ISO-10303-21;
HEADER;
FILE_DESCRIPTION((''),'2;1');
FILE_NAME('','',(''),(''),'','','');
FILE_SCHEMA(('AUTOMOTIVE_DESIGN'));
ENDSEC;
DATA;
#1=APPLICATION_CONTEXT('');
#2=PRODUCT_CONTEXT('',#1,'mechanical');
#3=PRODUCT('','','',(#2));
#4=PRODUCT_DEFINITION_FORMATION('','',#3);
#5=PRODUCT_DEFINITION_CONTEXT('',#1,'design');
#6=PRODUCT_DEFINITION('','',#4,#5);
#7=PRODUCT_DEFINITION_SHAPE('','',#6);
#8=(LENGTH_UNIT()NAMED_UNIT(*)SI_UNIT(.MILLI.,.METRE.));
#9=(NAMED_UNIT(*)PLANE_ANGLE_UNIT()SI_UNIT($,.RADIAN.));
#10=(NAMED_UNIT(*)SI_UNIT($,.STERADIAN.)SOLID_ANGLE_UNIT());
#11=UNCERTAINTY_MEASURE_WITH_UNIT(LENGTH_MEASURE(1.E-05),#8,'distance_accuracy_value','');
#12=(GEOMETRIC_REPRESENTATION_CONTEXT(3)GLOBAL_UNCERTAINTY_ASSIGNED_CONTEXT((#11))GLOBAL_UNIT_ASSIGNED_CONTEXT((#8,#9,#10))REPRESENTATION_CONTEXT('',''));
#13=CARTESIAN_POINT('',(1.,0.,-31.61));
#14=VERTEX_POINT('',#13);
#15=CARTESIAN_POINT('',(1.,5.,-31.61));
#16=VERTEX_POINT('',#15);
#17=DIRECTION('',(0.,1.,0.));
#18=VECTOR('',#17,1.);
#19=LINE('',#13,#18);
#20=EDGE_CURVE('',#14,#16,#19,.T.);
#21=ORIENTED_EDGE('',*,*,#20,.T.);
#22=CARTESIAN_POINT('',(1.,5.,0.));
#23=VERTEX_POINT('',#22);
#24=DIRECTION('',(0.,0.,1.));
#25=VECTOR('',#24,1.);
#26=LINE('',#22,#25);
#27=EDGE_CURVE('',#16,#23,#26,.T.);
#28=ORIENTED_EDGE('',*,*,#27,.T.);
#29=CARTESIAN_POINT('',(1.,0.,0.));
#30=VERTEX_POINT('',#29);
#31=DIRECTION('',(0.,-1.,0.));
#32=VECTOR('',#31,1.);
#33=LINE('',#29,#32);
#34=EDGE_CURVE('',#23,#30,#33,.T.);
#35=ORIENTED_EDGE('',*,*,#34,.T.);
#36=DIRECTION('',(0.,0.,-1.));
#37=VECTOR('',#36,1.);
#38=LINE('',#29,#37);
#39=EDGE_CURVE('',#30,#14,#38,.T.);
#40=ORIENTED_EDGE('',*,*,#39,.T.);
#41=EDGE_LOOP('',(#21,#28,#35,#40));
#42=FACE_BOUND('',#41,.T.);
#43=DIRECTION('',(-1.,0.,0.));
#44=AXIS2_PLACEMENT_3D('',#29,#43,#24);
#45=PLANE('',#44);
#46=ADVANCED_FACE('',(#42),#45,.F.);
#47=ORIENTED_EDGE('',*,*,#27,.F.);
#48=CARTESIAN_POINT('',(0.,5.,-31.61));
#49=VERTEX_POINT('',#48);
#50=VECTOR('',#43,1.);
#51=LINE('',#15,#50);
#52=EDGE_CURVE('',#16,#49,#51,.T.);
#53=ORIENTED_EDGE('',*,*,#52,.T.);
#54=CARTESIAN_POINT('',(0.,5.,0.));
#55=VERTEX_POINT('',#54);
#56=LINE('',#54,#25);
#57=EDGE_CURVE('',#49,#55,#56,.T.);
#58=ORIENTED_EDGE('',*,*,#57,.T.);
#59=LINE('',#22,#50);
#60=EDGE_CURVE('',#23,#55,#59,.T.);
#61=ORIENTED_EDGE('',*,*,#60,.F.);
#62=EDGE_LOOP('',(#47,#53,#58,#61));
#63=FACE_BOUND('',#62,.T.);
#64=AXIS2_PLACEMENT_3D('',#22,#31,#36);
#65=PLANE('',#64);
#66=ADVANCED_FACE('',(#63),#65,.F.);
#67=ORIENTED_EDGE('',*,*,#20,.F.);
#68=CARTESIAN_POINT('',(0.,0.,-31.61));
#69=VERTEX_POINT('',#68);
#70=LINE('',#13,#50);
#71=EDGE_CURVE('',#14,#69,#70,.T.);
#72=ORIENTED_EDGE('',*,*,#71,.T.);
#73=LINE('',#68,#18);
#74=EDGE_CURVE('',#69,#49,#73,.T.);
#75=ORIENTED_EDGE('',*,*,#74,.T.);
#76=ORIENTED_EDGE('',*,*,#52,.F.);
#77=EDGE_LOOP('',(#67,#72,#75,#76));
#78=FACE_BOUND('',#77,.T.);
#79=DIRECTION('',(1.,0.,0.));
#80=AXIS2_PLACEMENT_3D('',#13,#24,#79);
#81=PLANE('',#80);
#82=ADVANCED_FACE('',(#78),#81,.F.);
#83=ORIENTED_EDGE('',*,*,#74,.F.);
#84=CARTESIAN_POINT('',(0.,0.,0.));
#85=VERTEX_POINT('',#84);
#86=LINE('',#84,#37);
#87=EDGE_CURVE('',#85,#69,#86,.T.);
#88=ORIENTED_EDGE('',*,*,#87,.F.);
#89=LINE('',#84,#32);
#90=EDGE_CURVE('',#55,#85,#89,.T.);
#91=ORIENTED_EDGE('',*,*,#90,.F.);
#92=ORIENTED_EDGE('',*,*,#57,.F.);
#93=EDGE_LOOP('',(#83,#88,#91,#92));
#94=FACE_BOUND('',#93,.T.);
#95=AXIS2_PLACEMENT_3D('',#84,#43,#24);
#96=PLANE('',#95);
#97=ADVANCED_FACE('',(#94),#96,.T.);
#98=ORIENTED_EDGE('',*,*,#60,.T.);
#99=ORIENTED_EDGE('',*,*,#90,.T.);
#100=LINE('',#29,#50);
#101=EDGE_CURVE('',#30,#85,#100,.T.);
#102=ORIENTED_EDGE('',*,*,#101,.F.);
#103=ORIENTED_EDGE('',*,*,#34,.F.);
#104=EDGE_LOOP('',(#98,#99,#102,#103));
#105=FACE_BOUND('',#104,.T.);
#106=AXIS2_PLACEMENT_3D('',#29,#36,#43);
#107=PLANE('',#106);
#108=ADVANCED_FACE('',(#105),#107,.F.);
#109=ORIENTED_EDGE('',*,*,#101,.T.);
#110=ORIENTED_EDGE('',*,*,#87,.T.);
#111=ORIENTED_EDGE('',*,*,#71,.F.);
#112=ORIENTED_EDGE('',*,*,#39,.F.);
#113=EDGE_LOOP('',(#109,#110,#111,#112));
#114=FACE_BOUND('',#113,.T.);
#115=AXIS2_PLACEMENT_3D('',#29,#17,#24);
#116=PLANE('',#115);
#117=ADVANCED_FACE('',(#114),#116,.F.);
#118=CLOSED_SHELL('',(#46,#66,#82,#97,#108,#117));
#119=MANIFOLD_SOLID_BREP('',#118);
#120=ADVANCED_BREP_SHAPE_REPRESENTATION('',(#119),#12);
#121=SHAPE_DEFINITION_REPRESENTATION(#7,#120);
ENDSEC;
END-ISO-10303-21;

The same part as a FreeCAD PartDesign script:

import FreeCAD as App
import Part
import Sketcher
Q = App.Units.Quantity

doc = App.newDocument("Part")
body = doc.addObject("PartDesign::Body", "Body")

sketch1 = body.newObject("Sketcher::SketchObject", "Sketch")
sketch1.AttachmentSupport = (doc.getObject("YZ_Plane"), [""])
sketch1.MapMode = "FlatFace"
sketch1.addGeometry(Part.LineSegment(App.Vector(5, 0, 0), App.Vector(0, 0, 0)), False)
sketch1.addGeometry(Part.LineSegment(App.Vector(0, 0, 0), App.Vector(0, -31.61, 0)), False)
sketch1.addGeometry(Part.LineSegment(App.Vector(0, -31.61, 0), App.Vector(5, -31.61, 0)), False)
sketch1.addGeometry(Part.LineSegment(App.Vector(5, -31.61, 0), App.Vector(5, 0, 0)), False)
sketch1.addConstraint(Sketcher.Constraint("Coincident", 0, 2, 1, 1))
sketch1.addConstraint(Sketcher.Constraint("Coincident", 1, 2, 2, 1))
sketch1.addConstraint(Sketcher.Constraint("Coincident", 2, 2, 3, 1))
sketch1.addConstraint(Sketcher.Constraint("Coincident", 3, 2, 0, 1))
sketch1.addConstraint(Sketcher.Constraint("Horizontal", 0))
sketch1.addConstraint(Sketcher.Constraint("Vertical", 1))
sketch1.addConstraint(Sketcher.Constraint("Horizontal", 2))
sketch1.addConstraint(Sketcher.Constraint("Vertical", 3))
sketch1.addConstraint(Sketcher.Constraint("Coincident", 0, 2, -1, 1))
sketch1.addConstraint(Sketcher.Constraint("DistanceX", 0, 2, 0, 1, Q("5 mm")))
sketch1.addConstraint(Sketcher.Constraint("DistanceY", 1, 2, 1, 1, Q("31.61 mm")))
pad1 = body.newObject("PartDesign::Pad", "Pad")
pad1.Profile = sketch1
pad1.Length = 1

doc.recompute()
